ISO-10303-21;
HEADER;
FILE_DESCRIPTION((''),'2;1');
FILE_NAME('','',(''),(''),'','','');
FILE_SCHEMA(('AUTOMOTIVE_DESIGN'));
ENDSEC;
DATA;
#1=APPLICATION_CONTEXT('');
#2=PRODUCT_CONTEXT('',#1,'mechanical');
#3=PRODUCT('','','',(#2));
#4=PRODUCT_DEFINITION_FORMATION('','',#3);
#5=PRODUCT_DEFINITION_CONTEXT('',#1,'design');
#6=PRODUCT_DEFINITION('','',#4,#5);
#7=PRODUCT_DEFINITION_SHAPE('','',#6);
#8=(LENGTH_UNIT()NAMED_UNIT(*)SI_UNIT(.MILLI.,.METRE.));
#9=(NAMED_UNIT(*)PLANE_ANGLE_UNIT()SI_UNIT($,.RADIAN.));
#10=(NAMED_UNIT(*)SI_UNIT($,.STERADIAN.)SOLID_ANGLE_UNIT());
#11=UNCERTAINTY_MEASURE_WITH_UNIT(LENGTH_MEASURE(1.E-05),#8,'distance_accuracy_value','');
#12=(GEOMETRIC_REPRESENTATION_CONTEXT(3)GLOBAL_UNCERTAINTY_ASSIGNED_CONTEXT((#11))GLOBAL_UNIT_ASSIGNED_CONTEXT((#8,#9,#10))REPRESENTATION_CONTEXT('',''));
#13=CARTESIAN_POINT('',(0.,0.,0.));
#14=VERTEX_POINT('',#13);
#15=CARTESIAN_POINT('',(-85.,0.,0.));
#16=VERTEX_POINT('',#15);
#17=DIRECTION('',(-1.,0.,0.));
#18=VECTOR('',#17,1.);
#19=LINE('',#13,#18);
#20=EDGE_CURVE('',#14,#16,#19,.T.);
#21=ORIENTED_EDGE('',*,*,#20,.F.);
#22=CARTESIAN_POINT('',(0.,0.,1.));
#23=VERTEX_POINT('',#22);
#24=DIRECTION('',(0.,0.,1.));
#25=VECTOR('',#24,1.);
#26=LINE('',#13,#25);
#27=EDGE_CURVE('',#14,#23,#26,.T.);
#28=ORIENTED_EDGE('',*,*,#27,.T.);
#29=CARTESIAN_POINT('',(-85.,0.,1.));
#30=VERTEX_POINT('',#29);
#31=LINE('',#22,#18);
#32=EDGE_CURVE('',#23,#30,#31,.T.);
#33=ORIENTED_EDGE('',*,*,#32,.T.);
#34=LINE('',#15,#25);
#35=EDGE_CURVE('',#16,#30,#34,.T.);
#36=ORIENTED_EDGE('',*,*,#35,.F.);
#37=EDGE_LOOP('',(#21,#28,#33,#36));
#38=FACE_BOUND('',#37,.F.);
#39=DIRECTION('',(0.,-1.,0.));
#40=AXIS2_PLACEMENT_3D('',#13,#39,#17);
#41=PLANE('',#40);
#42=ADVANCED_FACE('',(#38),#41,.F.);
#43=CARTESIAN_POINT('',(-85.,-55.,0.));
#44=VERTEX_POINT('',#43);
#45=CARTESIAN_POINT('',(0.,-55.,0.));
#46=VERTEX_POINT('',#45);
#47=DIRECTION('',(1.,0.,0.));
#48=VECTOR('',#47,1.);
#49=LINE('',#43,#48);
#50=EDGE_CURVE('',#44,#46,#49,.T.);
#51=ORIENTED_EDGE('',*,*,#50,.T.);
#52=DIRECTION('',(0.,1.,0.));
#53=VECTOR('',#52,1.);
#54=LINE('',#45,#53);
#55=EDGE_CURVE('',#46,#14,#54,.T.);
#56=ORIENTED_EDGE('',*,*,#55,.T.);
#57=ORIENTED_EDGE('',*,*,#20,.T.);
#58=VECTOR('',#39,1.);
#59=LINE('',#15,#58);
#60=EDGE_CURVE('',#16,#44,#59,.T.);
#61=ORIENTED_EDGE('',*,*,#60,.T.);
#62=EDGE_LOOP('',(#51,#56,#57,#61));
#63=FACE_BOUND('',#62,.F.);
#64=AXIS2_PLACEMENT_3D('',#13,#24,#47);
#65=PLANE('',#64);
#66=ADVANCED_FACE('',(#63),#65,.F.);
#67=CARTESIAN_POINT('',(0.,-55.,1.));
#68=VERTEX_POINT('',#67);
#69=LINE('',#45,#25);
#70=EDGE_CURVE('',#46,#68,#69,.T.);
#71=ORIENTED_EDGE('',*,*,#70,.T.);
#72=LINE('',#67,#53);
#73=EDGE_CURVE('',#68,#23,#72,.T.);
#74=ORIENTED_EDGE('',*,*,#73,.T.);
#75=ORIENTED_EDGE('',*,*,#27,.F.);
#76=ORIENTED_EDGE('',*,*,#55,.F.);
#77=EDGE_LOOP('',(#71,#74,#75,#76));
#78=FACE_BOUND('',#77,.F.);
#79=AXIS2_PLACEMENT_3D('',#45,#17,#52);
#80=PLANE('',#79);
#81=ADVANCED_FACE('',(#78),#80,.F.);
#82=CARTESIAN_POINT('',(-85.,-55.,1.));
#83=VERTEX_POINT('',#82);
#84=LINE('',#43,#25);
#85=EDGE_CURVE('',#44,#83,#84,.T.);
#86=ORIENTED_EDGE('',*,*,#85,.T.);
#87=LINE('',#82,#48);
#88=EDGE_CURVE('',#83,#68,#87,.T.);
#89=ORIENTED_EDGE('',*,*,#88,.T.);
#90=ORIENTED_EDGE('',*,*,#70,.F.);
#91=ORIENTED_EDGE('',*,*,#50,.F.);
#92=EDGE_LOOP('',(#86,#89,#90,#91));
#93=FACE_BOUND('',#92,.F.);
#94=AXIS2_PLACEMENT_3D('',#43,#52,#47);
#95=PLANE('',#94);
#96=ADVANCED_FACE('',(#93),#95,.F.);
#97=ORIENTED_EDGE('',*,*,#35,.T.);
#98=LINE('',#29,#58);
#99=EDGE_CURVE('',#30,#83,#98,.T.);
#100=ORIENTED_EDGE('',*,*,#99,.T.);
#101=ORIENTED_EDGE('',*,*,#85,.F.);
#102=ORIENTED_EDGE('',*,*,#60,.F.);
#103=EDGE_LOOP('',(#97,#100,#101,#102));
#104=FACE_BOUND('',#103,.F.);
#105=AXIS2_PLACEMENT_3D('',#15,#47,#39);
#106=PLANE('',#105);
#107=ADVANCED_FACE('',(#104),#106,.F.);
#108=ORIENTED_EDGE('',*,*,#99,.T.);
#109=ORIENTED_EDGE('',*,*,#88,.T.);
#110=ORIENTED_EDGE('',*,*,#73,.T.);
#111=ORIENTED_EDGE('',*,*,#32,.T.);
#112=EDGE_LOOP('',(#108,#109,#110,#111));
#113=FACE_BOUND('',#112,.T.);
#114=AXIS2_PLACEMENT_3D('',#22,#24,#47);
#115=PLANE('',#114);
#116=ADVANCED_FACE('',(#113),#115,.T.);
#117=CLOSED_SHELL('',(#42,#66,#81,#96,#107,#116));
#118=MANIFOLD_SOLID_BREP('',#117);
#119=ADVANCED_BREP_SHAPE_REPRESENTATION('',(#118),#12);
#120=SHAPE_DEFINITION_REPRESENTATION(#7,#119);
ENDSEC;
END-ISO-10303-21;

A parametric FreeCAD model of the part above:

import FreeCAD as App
import Part
import Sketcher
from FreeCAD import Vector
Q = App.Units.Quantity


def add_polygon(sketch, points):
    """Adds a closed chain of lines whose ends are joined by coincident constraints."""
    first, n = sketch.GeometryCount, len(points)
    for a, b in zip(points, points[1:] + points[:1]):
        sketch.addGeometry(Part.LineSegment(App.Vector(*a, 0), App.Vector(*b, 0)), False)
    for i in range(n):
        sketch.addConstraint(Sketcher.Constraint("Coincident", first + i, 2, first + (i + 1) % n, 1))

doc = App.newDocument("Part")
params = doc.addObject("Spreadsheet::Sheet", "Params")
for row, (alias, value) in enumerate([
    ("sketch1_width", "85 mm"),
    ("sketch1_height", "55 mm"),
    ("pad1_length", "1 mm"),
], start=1):
    params.set(f"A{row}", alias)
    params.set(f"B{row}", "=" + value)
    params.setAlias(f"B{row}", alias)

body = doc.addObject("PartDesign::Body", "Body")

# Sketch on XY plane
sketch1 = body.newObject("Sketcher::SketchObject", "Sketch")
sketch1.AttachmentSupport = (doc.getObject("XY_Plane"), [""])
sketch1.MapMode = "FlatFace"
add_polygon(sketch1, [(0, -55), (0, 0), (-85, 0), (-85, -55)])  # lines 0-3
sketch1.addConstraint([
    Sketcher.Constraint("Vertical", 0),
    Sketcher.Constraint("Horizontal", 1),
    Sketcher.Constraint("Vertical", 2),
    Sketcher.Constraint("Horizontal", 3),
    Sketcher.Constraint("Coincident", 0, 2, -1, 1),
    Sketcher.Constraint("DistanceX", 1, 2, 1, 1, Q("85 mm")),
    Sketcher.Constraint("DistanceY", 0, 1, 0, 2, Q("55 mm")),
])
sketch1.setExpression("Constraints[9]", "Params.sketch1_width")
sketch1.setExpression("Constraints[10]", "Params.sketch1_height")
pad1 = body.newObject("PartDesign::Pad", "Pad")
pad1.Profile = sketch1
pad1.setExpression("Length", "Params.pad1_length")

doc.recompute()
